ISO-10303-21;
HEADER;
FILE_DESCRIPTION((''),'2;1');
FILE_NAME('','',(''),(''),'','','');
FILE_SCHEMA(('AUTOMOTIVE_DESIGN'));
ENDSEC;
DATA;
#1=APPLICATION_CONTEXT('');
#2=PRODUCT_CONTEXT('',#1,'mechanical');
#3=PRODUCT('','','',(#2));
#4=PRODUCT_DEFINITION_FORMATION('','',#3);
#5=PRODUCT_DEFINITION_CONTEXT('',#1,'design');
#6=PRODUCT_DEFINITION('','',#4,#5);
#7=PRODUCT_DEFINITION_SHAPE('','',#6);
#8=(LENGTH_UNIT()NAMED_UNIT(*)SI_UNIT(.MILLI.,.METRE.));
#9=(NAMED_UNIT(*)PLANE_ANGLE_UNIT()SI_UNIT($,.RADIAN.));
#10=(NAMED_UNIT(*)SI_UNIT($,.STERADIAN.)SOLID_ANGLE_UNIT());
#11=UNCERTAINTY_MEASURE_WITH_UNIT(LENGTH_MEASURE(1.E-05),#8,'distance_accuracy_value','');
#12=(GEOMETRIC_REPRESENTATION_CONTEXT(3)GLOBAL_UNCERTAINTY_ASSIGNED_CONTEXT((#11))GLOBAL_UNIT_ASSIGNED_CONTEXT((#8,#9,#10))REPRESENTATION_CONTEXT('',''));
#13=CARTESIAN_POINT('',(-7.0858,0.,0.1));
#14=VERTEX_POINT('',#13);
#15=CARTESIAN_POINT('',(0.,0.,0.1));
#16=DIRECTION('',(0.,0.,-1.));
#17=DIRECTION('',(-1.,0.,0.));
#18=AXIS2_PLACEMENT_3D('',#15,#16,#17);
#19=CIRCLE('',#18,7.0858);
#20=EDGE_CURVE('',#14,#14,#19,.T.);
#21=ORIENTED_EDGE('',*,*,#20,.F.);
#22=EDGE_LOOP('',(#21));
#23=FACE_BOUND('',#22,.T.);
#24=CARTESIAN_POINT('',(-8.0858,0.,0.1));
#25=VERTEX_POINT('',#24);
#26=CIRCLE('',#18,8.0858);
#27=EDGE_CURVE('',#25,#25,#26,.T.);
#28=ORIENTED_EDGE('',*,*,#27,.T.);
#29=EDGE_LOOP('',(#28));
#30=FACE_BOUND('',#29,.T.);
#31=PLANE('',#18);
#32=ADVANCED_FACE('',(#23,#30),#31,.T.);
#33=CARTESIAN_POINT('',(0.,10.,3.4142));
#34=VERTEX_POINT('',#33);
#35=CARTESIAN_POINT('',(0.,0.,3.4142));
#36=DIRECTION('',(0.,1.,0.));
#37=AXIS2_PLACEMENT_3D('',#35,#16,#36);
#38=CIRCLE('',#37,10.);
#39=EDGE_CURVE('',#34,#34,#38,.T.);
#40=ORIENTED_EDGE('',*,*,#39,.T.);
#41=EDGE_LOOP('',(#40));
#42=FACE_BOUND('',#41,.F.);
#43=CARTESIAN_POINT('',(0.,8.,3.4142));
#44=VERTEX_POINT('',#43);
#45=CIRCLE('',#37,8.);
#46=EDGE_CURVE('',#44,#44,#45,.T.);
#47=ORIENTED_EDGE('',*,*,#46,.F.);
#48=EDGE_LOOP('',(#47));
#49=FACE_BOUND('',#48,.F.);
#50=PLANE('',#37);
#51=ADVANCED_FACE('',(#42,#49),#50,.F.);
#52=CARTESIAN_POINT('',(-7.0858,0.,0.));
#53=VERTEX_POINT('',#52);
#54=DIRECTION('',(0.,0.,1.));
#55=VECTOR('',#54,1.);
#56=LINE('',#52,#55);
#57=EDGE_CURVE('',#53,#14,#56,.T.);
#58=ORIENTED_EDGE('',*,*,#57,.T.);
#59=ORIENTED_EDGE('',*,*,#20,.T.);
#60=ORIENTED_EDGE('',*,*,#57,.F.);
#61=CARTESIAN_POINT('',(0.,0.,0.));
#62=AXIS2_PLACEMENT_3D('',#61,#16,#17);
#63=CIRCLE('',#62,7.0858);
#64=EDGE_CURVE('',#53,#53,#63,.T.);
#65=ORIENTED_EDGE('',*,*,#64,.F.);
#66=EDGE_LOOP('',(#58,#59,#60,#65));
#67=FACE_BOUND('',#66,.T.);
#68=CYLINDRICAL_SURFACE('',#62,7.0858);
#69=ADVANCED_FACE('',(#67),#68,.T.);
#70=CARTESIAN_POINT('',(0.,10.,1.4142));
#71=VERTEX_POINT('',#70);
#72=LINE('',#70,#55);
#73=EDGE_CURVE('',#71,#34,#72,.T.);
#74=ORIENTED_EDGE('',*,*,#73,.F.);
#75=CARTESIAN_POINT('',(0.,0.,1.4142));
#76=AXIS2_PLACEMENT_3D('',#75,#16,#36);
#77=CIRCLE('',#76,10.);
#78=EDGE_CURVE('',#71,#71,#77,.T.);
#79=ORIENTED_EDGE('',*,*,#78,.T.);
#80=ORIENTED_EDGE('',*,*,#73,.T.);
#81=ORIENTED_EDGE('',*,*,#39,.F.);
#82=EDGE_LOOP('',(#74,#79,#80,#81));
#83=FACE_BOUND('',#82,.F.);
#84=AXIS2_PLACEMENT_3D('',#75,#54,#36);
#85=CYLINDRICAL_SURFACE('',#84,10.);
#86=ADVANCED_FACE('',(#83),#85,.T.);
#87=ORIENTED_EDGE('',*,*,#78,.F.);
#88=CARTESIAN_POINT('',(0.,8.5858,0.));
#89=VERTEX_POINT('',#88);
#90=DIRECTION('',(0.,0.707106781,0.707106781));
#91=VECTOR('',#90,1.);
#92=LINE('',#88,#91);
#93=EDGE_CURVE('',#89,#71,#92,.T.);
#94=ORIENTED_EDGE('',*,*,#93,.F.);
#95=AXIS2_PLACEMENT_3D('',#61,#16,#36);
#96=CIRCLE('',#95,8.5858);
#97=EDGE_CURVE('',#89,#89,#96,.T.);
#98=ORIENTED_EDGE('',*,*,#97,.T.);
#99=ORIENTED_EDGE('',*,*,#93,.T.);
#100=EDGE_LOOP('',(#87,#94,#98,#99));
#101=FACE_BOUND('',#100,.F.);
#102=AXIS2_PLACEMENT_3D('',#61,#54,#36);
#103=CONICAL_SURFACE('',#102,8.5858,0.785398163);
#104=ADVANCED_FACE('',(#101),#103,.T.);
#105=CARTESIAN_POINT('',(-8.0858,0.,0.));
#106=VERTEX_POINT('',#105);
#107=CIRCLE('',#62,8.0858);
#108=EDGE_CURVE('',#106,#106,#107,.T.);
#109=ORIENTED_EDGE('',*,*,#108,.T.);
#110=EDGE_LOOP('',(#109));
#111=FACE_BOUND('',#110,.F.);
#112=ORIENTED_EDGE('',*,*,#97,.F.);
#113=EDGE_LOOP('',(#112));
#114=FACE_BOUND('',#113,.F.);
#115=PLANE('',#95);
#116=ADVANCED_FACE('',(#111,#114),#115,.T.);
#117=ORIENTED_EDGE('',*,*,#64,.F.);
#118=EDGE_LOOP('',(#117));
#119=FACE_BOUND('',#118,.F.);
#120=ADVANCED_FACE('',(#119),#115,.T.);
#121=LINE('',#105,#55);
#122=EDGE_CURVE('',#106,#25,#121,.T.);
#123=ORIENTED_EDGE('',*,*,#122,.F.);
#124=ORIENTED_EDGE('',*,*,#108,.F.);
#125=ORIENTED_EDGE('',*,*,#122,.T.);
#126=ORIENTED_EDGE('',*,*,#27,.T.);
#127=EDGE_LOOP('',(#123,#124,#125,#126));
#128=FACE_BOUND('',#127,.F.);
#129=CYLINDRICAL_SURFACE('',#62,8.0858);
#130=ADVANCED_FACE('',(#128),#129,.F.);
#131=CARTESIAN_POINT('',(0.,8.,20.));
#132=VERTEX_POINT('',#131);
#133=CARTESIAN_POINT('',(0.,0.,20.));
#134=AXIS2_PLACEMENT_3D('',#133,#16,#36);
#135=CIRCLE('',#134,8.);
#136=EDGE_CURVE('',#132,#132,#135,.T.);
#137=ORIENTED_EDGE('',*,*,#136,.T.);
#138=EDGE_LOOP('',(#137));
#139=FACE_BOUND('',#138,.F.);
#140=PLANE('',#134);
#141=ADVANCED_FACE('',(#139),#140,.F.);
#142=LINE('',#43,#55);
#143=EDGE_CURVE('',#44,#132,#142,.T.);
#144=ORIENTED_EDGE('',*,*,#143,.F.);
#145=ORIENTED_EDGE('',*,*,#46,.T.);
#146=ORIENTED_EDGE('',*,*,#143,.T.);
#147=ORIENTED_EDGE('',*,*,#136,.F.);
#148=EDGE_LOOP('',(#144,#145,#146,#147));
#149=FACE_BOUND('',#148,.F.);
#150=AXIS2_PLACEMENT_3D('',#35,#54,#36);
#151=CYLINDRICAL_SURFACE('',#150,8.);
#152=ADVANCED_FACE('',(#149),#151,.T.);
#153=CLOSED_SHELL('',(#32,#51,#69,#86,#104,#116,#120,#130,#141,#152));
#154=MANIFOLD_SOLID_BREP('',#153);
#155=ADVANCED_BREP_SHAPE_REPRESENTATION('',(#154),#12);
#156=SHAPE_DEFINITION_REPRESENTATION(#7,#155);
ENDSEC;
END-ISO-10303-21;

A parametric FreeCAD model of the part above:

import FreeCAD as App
import Part
import Sketcher
from FreeCAD import Vector
Q = App.Units.Quantity

doc = App.newDocument("Part")
body = doc.addObject("PartDesign::Body", "Body")

sketch1 = body.newObject("Sketcher::SketchObject", "Sketch")
sketch1.AttachmentSupport = (doc.getObject("YZ_Plane"), [""])
sketch1.MapMode = "FlatFace"
sketch1.addGeometry([
    Part.LineSegment(Vector(0, 20, 0), Vector(0, 0, 0)),
    Part.LineSegment(Vector(0, 0, 0), Vector(8.6, 0, 0)),
    Part.LineSegment(Vector(8.6, 0, 0), Vector(10, 1.4, 0)),
    Part.LineSegment(Vector(10, 1.4, 0), Vector(10, 3.4, 0)),
    Part.LineSegment(Vector(10, 3.4, 0), Vector(8, 3.4, 0)),
    Part.LineSegment(Vector(8, 3.4, 0), Vector(8, 20, 0)),
    Part.LineSegment(Vector(8, 20, 0), Vector(0, 20, 0)),
], False)
sketch1.addConstraint([
    Sketcher.Constraint("Coincident", 0, 2, 1, 1),
    Sketcher.Constraint("Coincident", 1, 2, 2, 1),
    Sketcher.Constraint("Coincident", 2, 2, 3, 1),
    Sketcher.Constraint("Coincident", 3, 2, 4, 1),
    Sketcher.Constraint("Coincident", 4, 2, 5, 1),
    Sketcher.Constraint("Coincident", 5, 2, 6, 1),
    Sketcher.Constraint("Coincident", 6, 2, 0, 1),
    Sketcher.Constraint("Vertical", 0),
    Sketcher.Constraint("Horizontal", 1),
    Sketcher.Constraint("Vertical", 3),
    Sketcher.Constraint("Horizontal", 4),
    Sketcher.Constraint("Vertical", 5),
    Sketcher.Constraint("Horizontal", 6),
    Sketcher.Constraint("Coincident", 0, 2, -1, 1),
    Sketcher.Constraint("Equal", 4, 3),
    Sketcher.Constraint("DistanceX", 4, 2, 4, 1, Q("2 mm")),
    Sketcher.Constraint("DistanceY", 0, 2, 0, 1, Q("20 mm")),
    Sketcher.Constraint("Angle", 2, Q("45 deg")),
    Sketcher.Constraint("Distance", 2, Q("2 mm")),
    Sketcher.Constraint("DistanceX", 6, 2, 6, 1, Q("8 mm")),
])
revolution = body.newObject("PartDesign::Revolution", "Revolution")
revolution.Profile = sketch1
revolution.ReferenceAxis = (sketch1, ["V_Axis"])
revolution.Angle = 360

sketch2 = body.newObject("Sketcher::SketchObject", "Sketch001")
sketch2.AttachmentSupport = (doc.getObject("XY_Plane"), [""])
sketch2.MapMode = "FlatFace"
sketch2.addGeometry([
    Part.Circle(Vector(0, 0, 0), Vector(0, 0, 1), 8),
    Part.Circle(Vector(0, 0, 0), Vector(0, 0, 1), 7),
], False)
sketch2.addConstraint([
    Sketcher.Constraint("Coincident", 0, 3, -1, 1),
    Sketcher.Constraint("Coincident", 1, 3, -1, 1),
    Sketcher.Constraint("Diameter", 0, Q("16.1716 mm")),
    Sketcher.Constraint("Diameter", 1, Q("14.1716 mm")),
])
pocket1 = body.newObject("PartDesign::Pocket", "Pocket")
pocket1.Profile = sketch2
pocket1.Length = 0.1
pocket1.Reversed = True

doc.recompute()
